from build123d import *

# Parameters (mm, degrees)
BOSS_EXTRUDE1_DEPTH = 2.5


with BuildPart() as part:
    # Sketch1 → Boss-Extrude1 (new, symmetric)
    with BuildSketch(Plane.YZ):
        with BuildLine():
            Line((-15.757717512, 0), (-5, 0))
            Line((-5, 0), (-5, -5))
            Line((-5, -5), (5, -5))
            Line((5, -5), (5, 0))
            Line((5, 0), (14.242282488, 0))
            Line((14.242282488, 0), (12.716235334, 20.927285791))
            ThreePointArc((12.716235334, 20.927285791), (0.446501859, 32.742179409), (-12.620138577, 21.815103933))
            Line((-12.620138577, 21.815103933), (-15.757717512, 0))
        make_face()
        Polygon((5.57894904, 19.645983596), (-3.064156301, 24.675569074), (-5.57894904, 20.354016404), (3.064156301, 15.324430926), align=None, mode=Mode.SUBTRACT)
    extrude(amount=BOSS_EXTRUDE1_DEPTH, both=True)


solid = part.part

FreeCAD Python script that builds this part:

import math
import FreeCAD as App
import Part
import Sketcher
Q = App.Units.Quantity


def add_polygon(sketch, points):
    """Adds a closed chain of lines whose ends are joined by coincident constraints."""
    first, n = sketch.GeometryCount, len(points)
    for a, b in zip(points, points[1:] + points[:1]):
        sketch.addGeometry(Part.LineSegment(App.Vector(*a, 0), App.Vector(*b, 0)), False)
    for i in range(n):
        sketch.addConstraint(Sketcher.Constraint("Coincident", first + i, 2, first + (i + 1) % n, 1))

doc = App.newDocument("Part")
params = doc.addObject("Spreadsheet::Sheet", "Params")
for row, (alias, value) in enumerate([
    ("sketch1_width", "10 mm"),
    ("sketch1_height", "5 mm"),
    ("sketch1_radius", "12.75 mm"),
    ("sketch1_length", "10 mm"),
    ("sketch1_length2", "5 mm"),
    ("pad1_length", "5 mm"),
], start=1):
    params.set(f"A{row}", alias)
    params.set(f"B{row}", "=" + value)
    params.setAlias(f"B{row}", alias)

body = doc.addObject("PartDesign::Body", "Body")

# Sketch on YZ plane
sketch1 = body.newObject("Sketcher::SketchObject", "Sketch")
sketch1.AttachmentSupport = (doc.getObject("YZ_Plane"), [""])
sketch1.MapMode = "FlatFace"
sketch1.addGeometry(Part.LineSegment(App.Vector(-15.757718, 0, 0), App.Vector(-5, 0, 0)), False)  # 0
sketch1.addGeometry(Part.LineSegment(App.Vector(-5, 0, 0), App.Vector(-5, -5, 0)), False)  # 1
sketch1.addGeometry(Part.LineSegment(App.Vector(-5, -5, 0), App.Vector(5, -5, 0)), False)  # 2
sketch1.addGeometry(Part.LineSegment(App.Vector(5, -5, 0), App.Vector(5, 0, 0)), False)  # 3
sketch1.addGeometry(Part.LineSegment(App.Vector(5, 0, 0), App.Vector(14.242282, 0, 0)), False)  # 4
sketch1.addGeometry(Part.LineSegment(App.Vector(14.242282, 0, 0), App.Vector(12.716235, 20.927286, 0)), False)  # 5
sketch1.addGeometry(Part.ArcOfCircle(Part.Circle(App.Vector(0, 20, 0), App.Vector(0, 0, 1), 12.75), math.radians(4.170707), math.radians(171.815504)), False)  # 6
sketch1.addGeometry(Part.LineSegment(App.Vector(-12.620139, 21.815104, 0), App.Vector(-15.757718, 0, 0)), False)  # 7
add_polygon(sketch1, [(-3.064156, 24.675569), (5.578949, 19.645984), (3.064156, 15.324431), (-5.578949, 20.354016)])  # lines 8-11
sketch1.addConstraint([
    Sketcher.Constraint("Coincident", 0, 2, 1, 1),
    Sketcher.Constraint("Coincident", 1, 2, 2, 1),
    Sketcher.Constraint("Coincident", 2, 2, 3, 1),
    Sketcher.Constraint("Coincident", 3, 2, 4, 1),
    Sketcher.Constraint("Coincident", 4, 2, 5, 1),
    Sketcher.Constraint("Tangent", 5, 2, 6, 1),
    Sketcher.Constraint("Tangent", 6, 2, 7, 1),
    Sketcher.Constraint("Coincident", 7, 2, 0, 1),
    Sketcher.Constraint("Horizontal", 0),
    Sketcher.Constraint("Vertical", 1),
    Sketcher.Constraint("Horizontal", 2),
    Sketcher.Constraint("Vertical", 3),
    Sketcher.Constraint("Horizontal", 4),
    Sketcher.Constraint("Symmetric", 0, 2, 3, 2, -1, 1),
    Sketcher.Constraint("PointOnObject", 6, 3, -2),
    Sketcher.Constraint("PointOnObject", 0, 2, -1),
    Sketcher.Constraint("Perpendicular", 8, 9),
    Sketcher.Constraint("Perpendicular", 9, 10),
    Sketcher.Constraint("Perpendicular", 10, 11),
    Sketcher.Constraint("DistanceX", 2, 1, 2, 2, Q("10 mm")),
    Sketcher.Constraint("DistanceY", 1, 2, 1, 1, Q("5 mm")),
    Sketcher.Constraint("Radius", 6, Q("12.75 mm")),
    Sketcher.Constraint("Distance", 8, Q("10 mm")),
    Sketcher.Constraint("Distance", 9, Q("5 mm")),
    Sketcher.Constraint("DistanceY", -1, 1, 6, 3, Q("20 mm")),
    Sketcher.Constraint("DistanceX", 10, 2, 8, 2, Q("11.157898 mm")),
    Sketcher.Constraint("Distance", 7, Q("22.039582 mm")),
    Sketcher.Constraint("DistanceX", 4, 1, 4, 2, Q("9.242282 mm")),
    Sketcher.Constraint("DistanceX", -1, 1, 8, 2, Q("5.578949 mm")),
    Sketcher.Constraint("DistanceY", -1, 1, 9, 2, Q("15.324431 mm")),
])
sketch1.setExpression("Constraints[23]", "Params.sketch1_width")
sketch1.setExpression("Constraints[24]", "Params.sketch1_height")
sketch1.setExpression("Constraints[25]", "Params.sketch1_radius")
sketch1.setExpression("Constraints[26]", "Params.sketch1_length")
sketch1.setExpression("Constraints[27]", "Params.sketch1_length2")
pad1 = body.newObject("PartDesign::Pad", "Pad")
pad1.Profile = sketch1
pad1.setExpression("Length", "Params.pad1_length")
pad1.Midplane = True

doc.recompute()
